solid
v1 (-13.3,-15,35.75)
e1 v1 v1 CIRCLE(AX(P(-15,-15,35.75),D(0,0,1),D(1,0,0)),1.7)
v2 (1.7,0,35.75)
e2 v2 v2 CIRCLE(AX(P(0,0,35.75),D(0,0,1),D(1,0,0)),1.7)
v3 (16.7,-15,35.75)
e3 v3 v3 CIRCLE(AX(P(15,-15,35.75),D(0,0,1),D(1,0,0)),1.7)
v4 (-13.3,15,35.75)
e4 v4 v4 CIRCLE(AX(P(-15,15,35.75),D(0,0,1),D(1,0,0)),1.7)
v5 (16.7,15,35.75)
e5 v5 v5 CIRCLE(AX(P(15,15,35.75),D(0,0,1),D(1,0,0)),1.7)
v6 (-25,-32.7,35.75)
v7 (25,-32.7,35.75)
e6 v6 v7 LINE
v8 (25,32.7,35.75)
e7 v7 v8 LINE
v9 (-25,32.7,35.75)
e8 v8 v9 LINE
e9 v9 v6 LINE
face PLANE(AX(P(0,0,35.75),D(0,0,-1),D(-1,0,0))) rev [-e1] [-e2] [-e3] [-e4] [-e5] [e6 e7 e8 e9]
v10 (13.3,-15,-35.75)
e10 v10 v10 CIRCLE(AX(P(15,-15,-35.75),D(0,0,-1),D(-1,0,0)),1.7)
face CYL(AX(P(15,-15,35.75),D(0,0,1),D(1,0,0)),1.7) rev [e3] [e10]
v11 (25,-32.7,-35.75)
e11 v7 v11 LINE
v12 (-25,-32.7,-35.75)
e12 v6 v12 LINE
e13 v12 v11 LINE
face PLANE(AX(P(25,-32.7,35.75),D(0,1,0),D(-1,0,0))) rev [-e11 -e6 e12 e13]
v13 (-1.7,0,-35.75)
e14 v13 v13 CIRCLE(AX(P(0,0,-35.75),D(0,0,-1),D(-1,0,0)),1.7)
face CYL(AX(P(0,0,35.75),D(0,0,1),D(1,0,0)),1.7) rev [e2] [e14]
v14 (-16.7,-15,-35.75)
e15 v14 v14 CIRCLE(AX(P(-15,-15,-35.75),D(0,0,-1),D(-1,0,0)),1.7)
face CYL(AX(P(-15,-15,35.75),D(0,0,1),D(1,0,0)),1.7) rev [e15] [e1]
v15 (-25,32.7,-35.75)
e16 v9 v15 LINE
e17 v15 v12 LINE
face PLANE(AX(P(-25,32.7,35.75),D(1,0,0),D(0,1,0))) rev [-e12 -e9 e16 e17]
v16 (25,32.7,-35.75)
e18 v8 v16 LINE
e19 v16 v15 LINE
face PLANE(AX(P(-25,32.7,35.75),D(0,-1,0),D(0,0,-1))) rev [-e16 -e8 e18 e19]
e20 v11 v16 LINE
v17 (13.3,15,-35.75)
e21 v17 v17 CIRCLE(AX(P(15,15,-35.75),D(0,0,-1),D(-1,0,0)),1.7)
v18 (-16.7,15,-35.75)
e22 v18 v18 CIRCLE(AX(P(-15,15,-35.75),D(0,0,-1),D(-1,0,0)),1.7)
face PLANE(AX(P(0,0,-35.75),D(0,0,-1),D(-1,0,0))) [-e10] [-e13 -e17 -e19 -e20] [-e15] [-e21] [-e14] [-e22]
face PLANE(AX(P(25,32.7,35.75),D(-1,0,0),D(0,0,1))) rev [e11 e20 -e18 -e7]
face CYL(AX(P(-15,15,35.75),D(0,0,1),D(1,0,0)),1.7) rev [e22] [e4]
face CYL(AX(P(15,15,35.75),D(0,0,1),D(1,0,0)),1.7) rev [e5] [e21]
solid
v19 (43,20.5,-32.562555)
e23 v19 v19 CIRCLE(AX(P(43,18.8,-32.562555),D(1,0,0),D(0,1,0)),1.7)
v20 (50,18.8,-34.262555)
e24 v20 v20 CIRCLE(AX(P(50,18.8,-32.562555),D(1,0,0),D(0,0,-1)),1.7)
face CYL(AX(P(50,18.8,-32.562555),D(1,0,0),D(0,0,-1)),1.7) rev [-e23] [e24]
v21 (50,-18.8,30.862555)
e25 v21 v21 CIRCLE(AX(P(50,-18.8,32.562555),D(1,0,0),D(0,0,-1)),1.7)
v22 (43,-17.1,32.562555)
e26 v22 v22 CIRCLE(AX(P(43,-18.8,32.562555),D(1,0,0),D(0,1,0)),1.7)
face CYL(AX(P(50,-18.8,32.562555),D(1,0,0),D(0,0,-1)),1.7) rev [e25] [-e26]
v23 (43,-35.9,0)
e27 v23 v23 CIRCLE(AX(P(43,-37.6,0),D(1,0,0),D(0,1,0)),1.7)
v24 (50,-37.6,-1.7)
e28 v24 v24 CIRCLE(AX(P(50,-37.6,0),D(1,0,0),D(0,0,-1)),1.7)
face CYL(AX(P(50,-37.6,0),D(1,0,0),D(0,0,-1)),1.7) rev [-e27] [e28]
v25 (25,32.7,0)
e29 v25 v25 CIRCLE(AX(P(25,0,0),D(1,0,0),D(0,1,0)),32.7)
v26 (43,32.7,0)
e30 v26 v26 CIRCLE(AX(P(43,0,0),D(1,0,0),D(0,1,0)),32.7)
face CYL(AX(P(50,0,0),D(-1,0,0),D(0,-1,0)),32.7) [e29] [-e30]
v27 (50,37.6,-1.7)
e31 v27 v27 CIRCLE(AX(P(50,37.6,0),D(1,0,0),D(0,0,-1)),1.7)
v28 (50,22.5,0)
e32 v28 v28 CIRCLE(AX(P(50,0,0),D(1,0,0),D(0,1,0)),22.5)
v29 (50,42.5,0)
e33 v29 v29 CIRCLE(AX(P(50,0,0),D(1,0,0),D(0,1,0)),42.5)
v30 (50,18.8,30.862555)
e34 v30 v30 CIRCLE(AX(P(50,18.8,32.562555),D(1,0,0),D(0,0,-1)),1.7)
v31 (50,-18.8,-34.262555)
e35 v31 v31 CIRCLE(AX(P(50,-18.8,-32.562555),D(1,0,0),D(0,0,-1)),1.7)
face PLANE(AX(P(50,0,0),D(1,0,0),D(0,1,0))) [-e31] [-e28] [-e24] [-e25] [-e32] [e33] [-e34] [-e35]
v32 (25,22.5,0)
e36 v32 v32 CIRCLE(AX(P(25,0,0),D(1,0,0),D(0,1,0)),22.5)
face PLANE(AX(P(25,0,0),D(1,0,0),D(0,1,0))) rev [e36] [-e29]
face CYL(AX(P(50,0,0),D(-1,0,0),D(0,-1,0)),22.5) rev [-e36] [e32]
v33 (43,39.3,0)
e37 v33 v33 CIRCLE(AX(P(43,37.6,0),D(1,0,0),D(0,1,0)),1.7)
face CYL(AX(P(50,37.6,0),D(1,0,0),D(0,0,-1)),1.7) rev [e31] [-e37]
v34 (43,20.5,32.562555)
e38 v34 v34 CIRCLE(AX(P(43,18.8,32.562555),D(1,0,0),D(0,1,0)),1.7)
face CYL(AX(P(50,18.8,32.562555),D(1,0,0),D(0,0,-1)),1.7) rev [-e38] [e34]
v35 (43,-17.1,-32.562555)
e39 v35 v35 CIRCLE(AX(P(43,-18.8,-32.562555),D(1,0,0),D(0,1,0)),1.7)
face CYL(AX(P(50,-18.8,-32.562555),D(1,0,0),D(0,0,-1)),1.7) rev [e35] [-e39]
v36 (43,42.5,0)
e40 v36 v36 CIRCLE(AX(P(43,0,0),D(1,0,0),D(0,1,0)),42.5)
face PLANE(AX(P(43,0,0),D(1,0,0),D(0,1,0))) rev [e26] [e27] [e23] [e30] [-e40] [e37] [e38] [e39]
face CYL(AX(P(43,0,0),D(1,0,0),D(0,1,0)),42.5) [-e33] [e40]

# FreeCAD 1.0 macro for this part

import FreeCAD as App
import Part
import Sketcher

V = App.Vector

doc = App.newDocument("Part")
body = doc.addObject("PartDesign::Body", "Body")

# Sketch on XY plane
sketch1 = body.newObject("Sketcher::SketchObject", "Sketch")
sketch1.AttachmentSupport = (doc.getObject("XY_Plane"), [""])
sketch1.MapMode = "FlatFace"
sketch1.addGeometry([
    Part.LineSegment(V(-25, 33, 0), V(-25, -33, 0)),
    Part.LineSegment(V(-25, -33, 0), V(25, -33, 0)),
    Part.LineSegment(V(25, -33, 0), V(25, 33, 0)),
    Part.LineSegment(V(25, 33, 0), V(-25, 33, 0)),
], False)
sketch1.addConstraint([
    Sketcher.Constraint("Coincident", 0, 2, 1, 1),
    Sketcher.Constraint("Coincident", 1, 2, 2, 1),
    Sketcher.Constraint("Coincident", 2, 2, 3, 1),
    Sketcher.Constraint("Coincident", 3, 2, 0, 1),
    Sketcher.Constraint("Vertical", 0),
    Sketcher.Constraint("Horizontal", 1),
    Sketcher.Constraint("Vertical", 2),
    Sketcher.Constraint("Horizontal", 3),
    Sketcher.Constraint("Symmetric", 0, 2, 2, 2, -1, 1),
    Sketcher.Constraint("DistanceX", 1, 1, 1, 2, 50.0),
    Sketcher.Constraint("DistanceY", 0, 2, 0, 1, 65.4),
])
pad1 = body.newObject("PartDesign::Pad", "Pad")
pad1.Profile = sketch1
pad1.Length = 71.5
pad1.Midplane = True

# Sketch on YZ plane
sketch2 = body.newObject("Sketcher::SketchObject", "Sketch001")
sketch2.AttachmentSupport = (doc.getObject("YZ_Plane"), [""])
sketch2.MapMode = "FlatFace"
sketch2.AttachmentOffset = App.Placement(V(0, 0, 15), App.Rotation())
sketch2.addGeometry([
    Part.LineSegment(V(15, -42.5, 0), V(15, 35.8, 0)),
    Part.LineSegment(V(15, 35.8, 0), V(13.3, 35.8, 0)),
    Part.LineSegment(V(13.3, 35.8, 0), V(13.3, -42.5, 0)),
    Part.LineSegment(V(13.3, -42.5, 0), V(15, -42.5, 0)),
], False)
sketch2.addGeometry(Part.LineSegment(V(15, 35.8, 0), V(15, -42.5, 0)), True)  # axis
sketch2.addConstraint([
    Sketcher.Constraint("Coincident", 0, 2, 1, 1),
    Sketcher.Constraint("Coincident", 1, 2, 2, 1),
    Sketcher.Constraint("Coincident", 2, 2, 3, 1),
    Sketcher.Constraint("Coincident", 3, 2, 0, 1),
    Sketcher.Constraint("Vertical", 0),
    Sketcher.Constraint("Horizontal", 1),
    Sketcher.Constraint("Vertical", 2),
    Sketcher.Constraint("Horizontal", 3),
    Sketcher.Constraint("Vertical", 4),
    Sketcher.Constraint("Coincident", 4, 1, 0, 2),
    Sketcher.Constraint("Horizontal", 2, 2, 4, 2),
    Sketcher.Constraint("DistanceX", 1, 2, 1, 1, 1.7),
    Sketcher.Constraint("DistanceX", -1, 1, 0, 2, 15.0),
    Sketcher.Constraint("DistanceY", 0, 1, 0, 2, 78.25),
    Sketcher.Constraint("DistanceY", 2, 2, -1, 1, 42.5),
])
groove = body.newObject("PartDesign::Groove", "Groove")
groove.Profile = sketch2
groove.ReferenceAxis = (sketch2, ["Axis0"])
groove.Angle = 360
doc.recompute()

datumline = body.newObject("PartDesign::Line", "DatumLine")
datumline.Placement = App.Placement(V(0, 0, 0), App.Rotation(V(0, 0, 1), V(-0.707106781, -0.707106781, 0)))
linearpattern = body.newObject("PartDesign::LinearPattern", "LinearPattern")
linearpattern.Originals = [groove]
linearpattern.Direction = (datumline, [""])
linearpattern.Mode = "offset"
linearpattern.Offset = 42.426407
linearpattern.Occurrences = 2
body.Tip = linearpattern
doc.recompute()

linearpattern2 = body.newObject("PartDesign::LinearPattern", "LinearPattern001")
linearpattern2.Originals = [groove]
linearpattern2.Direction = (doc.getObject("X_Axis"), [""])
linearpattern2.Mode = "offset"
linearpattern2.Offset = 30
linearpattern2.Occurrences = 2
linearpattern2.Reversed = True
body.Tip = linearpattern2
doc.recompute()

linearpattern3 = body.newObject("PartDesign::LinearPattern", "LinearPattern002")
linearpattern3.Originals = [groove]
linearpattern3.Direction = (doc.getObject("Y_Axis"), [""])
linearpattern3.Mode = "offset"
linearpattern3.Offset = 30
linearpattern3.Occurrences = 2
linearpattern3.Reversed = True
body.Tip = linearpattern3
doc.recompute()

datumline2 = body.newObject("PartDesign::Line", "DatumLine001")
datumline2.Placement = App.Placement(V(0, 0, 0), App.Rotation(V(0, 0, 1), V(-0.707106781, -0.707106781, 0)))
linearpattern4 = body.newObject("PartDesign::LinearPattern", "LinearPattern003")
linearpattern4.Originals = [groove]
linearpattern4.Direction = (datumline2, [""])
linearpattern4.Mode = "offset"
linearpattern4.Offset = 21.213203
linearpattern4.Occurrences = 2
body.Tip = linearpattern4
body2 = doc.addObject("PartDesign::Body", "Body001")

# Sketch on YZ plane
sketch3 = body2.newObject("Sketcher::SketchObject", "Sketch002")
sketch3.AttachmentSupport = (doc.getObject("YZ_Plane001"), [""])
sketch3.MapMode = "FlatFace"
sketch3.AttachmentOffset = App.Placement(V(0, 0, 25), App.Rotation())
sketch3.addGeometry([
    Part.Circle(V(0, 0, 0), V(0, 0, 1), 33),
    Part.Circle(V(0, 0, 0), V(0, 0, 1), 22),
], False)
sketch3.addConstraint([
    Sketcher.Constraint("Coincident", 0, 3, -1, 1),
    Sketcher.Constraint("Coincident", 1, 3, -1, 1),
    Sketcher.Constraint("Diameter", 1, 45.0),
    Sketcher.Constraint("Diameter", 0, 65.4),
])
pad2 = body2.newObject("PartDesign::Pad", "Pad001")
pad2.Profile = sketch3
pad2.Length = 25

# Sketch on YZ plane
sketch4 = body2.newObject("Sketcher::SketchObject", "Sketch003")
sketch4.AttachmentSupport = (doc.getObject("YZ_Plane001"), [""])
sketch4.MapMode = "FlatFace"
sketch4.AttachmentOffset = App.Placement(V(0, 0, 50), App.Rotation())
sketch4.addGeometry([
    Part.Circle(V(0, 0, 0), V(0, 0, 1), 42),
    Part.Circle(V(0, 0, 0), V(0, 0, 1), 33),
], False)
sketch4.addConstraint([
    Sketcher.Constraint("Coincident", 0, 3, -1, 1),
    Sketcher.Constraint("Coincident", 1, 3, -1, 1),
    Sketcher.Constraint("Diameter", 0, 85.0),
    Sketcher.Constraint("Diameter", 1, 65.4),
])
pad3 = body2.newObject("PartDesign::Pad", "Pad002")
pad3.Profile = sketch4
pad3.Length = 7
pad3.Reversed = True

# Sketch on XZ plane
sketch5 = body2.newObject("Sketcher::SketchObject", "Sketch004")
sketch5.AttachmentSupport = (doc.getObject("XZ_Plane001"), [""])
sketch5.MapMode = "FlatFace"
sketch5.AttachmentOffset = App.Placement(V(0, 0, -18.8), App.Rotation())
sketch5.addGeometry([
    Part.LineSegment(V(43, 32.6, 0), V(50, 32.6, 0)),
    Part.LineSegment(V(50, 32.6, 0), V(50, 30.9, 0)),
    Part.LineSegment(V(50, 30.9, 0), V(43, 30.9, 0)),
    Part.LineSegment(V(43, 30.9, 0), V(43, 32.6, 0)),
], False)
sketch5.addGeometry(Part.LineSegment(V(50, 32.6, 0), V(43, 32.6, 0)), True)  # axis
sketch5.addConstraint([
    Sketcher.Constraint("Coincident", 0, 2, 1, 1),
    Sketcher.Constraint("Coincident", 1, 2, 2, 1),
    Sketcher.Constraint("Coincident", 2, 2, 3, 1),
    Sketcher.Constraint("Coincident", 3, 2, 0, 1),
    Sketcher.Constraint("Horizontal", 0),
    Sketcher.Constraint("Vertical", 1),
    Sketcher.Constraint("Horizontal", 2),
    Sketcher.Constraint("Vertical", 3),
    Sketcher.Constraint("Horizontal", 4),
    Sketcher.Constraint("Coincident", 4, 1, 0, 2),
    Sketcher.Constraint("Vertical", 2, 2, 4, 2),
    Sketcher.Constraint("DistanceY", 1, 2, 1, 1, 1.7),
    Sketcher.Constraint("DistanceX", -1, 1, 0, 2, 50.0),
    Sketcher.Constraint("DistanceX", 0, 1, 0, 2, 7.001),
    Sketcher.Constraint("DistanceY", -1, 1, 0, 2, 32.562555),
])
groove2 = body2.newObject("PartDesign::Groove", "Groove001")
groove2.Profile = sketch5
groove2.ReferenceAxis = (sketch5, ["Axis0"])
groove2.Angle = 360
doc.recompute()

datumline3 = body2.newObject("PartDesign::Line", "DatumLine002")
datumline3.Placement = App.Placement(V(0, 0, 0), App.Rotation(V(0, 0, 1), V(0, 0.5, -0.866025404)))
linearpattern5 = body2.newObject("PartDesign::LinearPattern", "LinearPattern004")
linearpattern5.Originals = [groove2]
linearpattern5.Direction = (datumline3, [""])
linearpattern5.Mode = "offset"
linearpattern5.Offset = 37.6
linearpattern5.Occurrences = 2
body2.Tip = linearpattern5
doc.recompute()

linearpattern6 = body2.newObject("PartDesign::LinearPattern", "LinearPattern005")
linearpattern6.Originals = [groove2]
linearpattern6.Direction = (doc.getObject("Z_Axis001"), [""])
linearpattern6.Mode = "offset"
linearpattern6.Offset = 65.12511
linearpattern6.Occurrences = 2
linearpattern6.Reversed = True
body2.Tip = linearpattern6
doc.recompute()

datumline4 = body2.newObject("PartDesign::Line", "DatumLine003")
datumline4.Placement = App.Placement(V(0, 0, 0), App.Rotation(V(0, 0, 1), V(0, -0.5, -0.866025404)))
linearpattern7 = body2.newObject("PartDesign::LinearPattern", "LinearPattern006")
linearpattern7.Originals = [groove2]
linearpattern7.Direction = (datumline4, [""])
linearpattern7.Mode = "offset"
linearpattern7.Offset = 75.2
linearpattern7.Occurrences = 2
body2.Tip = linearpattern7
doc.recompute()

datumline5 = body2.newObject("PartDesign::Line", "DatumLine004")
datumline5.Placement = App.Placement(V(0, 0, 0), App.Rotation(V(0, 0, 1), V(0, -0.866025404, -0.5)))
linearpattern8 = body2.newObject("PartDesign::LinearPattern", "LinearPattern007")
linearpattern8.Originals = [groove2]
linearpattern8.Direction = (datumline5, [""])
linearpattern8.Mode = "offset"
linearpattern8.Offset = 65.12511
linearpattern8.Occurrences = 2
body2.Tip = linearpattern8
doc.recompute()

linearpattern9 = body2.newObject("PartDesign::LinearPattern", "LinearPattern008")
linearpattern9.Originals = [groove2]
linearpattern9.Direction = (doc.getObject("Y_Axis001"), [""])
linearpattern9.Mode = "offset"
linearpattern9.Offset = 37.6
linearpattern9.Occurrences = 2
linearpattern9.Reversed = True
body2.Tip = linearpattern9

doc.recompute()
